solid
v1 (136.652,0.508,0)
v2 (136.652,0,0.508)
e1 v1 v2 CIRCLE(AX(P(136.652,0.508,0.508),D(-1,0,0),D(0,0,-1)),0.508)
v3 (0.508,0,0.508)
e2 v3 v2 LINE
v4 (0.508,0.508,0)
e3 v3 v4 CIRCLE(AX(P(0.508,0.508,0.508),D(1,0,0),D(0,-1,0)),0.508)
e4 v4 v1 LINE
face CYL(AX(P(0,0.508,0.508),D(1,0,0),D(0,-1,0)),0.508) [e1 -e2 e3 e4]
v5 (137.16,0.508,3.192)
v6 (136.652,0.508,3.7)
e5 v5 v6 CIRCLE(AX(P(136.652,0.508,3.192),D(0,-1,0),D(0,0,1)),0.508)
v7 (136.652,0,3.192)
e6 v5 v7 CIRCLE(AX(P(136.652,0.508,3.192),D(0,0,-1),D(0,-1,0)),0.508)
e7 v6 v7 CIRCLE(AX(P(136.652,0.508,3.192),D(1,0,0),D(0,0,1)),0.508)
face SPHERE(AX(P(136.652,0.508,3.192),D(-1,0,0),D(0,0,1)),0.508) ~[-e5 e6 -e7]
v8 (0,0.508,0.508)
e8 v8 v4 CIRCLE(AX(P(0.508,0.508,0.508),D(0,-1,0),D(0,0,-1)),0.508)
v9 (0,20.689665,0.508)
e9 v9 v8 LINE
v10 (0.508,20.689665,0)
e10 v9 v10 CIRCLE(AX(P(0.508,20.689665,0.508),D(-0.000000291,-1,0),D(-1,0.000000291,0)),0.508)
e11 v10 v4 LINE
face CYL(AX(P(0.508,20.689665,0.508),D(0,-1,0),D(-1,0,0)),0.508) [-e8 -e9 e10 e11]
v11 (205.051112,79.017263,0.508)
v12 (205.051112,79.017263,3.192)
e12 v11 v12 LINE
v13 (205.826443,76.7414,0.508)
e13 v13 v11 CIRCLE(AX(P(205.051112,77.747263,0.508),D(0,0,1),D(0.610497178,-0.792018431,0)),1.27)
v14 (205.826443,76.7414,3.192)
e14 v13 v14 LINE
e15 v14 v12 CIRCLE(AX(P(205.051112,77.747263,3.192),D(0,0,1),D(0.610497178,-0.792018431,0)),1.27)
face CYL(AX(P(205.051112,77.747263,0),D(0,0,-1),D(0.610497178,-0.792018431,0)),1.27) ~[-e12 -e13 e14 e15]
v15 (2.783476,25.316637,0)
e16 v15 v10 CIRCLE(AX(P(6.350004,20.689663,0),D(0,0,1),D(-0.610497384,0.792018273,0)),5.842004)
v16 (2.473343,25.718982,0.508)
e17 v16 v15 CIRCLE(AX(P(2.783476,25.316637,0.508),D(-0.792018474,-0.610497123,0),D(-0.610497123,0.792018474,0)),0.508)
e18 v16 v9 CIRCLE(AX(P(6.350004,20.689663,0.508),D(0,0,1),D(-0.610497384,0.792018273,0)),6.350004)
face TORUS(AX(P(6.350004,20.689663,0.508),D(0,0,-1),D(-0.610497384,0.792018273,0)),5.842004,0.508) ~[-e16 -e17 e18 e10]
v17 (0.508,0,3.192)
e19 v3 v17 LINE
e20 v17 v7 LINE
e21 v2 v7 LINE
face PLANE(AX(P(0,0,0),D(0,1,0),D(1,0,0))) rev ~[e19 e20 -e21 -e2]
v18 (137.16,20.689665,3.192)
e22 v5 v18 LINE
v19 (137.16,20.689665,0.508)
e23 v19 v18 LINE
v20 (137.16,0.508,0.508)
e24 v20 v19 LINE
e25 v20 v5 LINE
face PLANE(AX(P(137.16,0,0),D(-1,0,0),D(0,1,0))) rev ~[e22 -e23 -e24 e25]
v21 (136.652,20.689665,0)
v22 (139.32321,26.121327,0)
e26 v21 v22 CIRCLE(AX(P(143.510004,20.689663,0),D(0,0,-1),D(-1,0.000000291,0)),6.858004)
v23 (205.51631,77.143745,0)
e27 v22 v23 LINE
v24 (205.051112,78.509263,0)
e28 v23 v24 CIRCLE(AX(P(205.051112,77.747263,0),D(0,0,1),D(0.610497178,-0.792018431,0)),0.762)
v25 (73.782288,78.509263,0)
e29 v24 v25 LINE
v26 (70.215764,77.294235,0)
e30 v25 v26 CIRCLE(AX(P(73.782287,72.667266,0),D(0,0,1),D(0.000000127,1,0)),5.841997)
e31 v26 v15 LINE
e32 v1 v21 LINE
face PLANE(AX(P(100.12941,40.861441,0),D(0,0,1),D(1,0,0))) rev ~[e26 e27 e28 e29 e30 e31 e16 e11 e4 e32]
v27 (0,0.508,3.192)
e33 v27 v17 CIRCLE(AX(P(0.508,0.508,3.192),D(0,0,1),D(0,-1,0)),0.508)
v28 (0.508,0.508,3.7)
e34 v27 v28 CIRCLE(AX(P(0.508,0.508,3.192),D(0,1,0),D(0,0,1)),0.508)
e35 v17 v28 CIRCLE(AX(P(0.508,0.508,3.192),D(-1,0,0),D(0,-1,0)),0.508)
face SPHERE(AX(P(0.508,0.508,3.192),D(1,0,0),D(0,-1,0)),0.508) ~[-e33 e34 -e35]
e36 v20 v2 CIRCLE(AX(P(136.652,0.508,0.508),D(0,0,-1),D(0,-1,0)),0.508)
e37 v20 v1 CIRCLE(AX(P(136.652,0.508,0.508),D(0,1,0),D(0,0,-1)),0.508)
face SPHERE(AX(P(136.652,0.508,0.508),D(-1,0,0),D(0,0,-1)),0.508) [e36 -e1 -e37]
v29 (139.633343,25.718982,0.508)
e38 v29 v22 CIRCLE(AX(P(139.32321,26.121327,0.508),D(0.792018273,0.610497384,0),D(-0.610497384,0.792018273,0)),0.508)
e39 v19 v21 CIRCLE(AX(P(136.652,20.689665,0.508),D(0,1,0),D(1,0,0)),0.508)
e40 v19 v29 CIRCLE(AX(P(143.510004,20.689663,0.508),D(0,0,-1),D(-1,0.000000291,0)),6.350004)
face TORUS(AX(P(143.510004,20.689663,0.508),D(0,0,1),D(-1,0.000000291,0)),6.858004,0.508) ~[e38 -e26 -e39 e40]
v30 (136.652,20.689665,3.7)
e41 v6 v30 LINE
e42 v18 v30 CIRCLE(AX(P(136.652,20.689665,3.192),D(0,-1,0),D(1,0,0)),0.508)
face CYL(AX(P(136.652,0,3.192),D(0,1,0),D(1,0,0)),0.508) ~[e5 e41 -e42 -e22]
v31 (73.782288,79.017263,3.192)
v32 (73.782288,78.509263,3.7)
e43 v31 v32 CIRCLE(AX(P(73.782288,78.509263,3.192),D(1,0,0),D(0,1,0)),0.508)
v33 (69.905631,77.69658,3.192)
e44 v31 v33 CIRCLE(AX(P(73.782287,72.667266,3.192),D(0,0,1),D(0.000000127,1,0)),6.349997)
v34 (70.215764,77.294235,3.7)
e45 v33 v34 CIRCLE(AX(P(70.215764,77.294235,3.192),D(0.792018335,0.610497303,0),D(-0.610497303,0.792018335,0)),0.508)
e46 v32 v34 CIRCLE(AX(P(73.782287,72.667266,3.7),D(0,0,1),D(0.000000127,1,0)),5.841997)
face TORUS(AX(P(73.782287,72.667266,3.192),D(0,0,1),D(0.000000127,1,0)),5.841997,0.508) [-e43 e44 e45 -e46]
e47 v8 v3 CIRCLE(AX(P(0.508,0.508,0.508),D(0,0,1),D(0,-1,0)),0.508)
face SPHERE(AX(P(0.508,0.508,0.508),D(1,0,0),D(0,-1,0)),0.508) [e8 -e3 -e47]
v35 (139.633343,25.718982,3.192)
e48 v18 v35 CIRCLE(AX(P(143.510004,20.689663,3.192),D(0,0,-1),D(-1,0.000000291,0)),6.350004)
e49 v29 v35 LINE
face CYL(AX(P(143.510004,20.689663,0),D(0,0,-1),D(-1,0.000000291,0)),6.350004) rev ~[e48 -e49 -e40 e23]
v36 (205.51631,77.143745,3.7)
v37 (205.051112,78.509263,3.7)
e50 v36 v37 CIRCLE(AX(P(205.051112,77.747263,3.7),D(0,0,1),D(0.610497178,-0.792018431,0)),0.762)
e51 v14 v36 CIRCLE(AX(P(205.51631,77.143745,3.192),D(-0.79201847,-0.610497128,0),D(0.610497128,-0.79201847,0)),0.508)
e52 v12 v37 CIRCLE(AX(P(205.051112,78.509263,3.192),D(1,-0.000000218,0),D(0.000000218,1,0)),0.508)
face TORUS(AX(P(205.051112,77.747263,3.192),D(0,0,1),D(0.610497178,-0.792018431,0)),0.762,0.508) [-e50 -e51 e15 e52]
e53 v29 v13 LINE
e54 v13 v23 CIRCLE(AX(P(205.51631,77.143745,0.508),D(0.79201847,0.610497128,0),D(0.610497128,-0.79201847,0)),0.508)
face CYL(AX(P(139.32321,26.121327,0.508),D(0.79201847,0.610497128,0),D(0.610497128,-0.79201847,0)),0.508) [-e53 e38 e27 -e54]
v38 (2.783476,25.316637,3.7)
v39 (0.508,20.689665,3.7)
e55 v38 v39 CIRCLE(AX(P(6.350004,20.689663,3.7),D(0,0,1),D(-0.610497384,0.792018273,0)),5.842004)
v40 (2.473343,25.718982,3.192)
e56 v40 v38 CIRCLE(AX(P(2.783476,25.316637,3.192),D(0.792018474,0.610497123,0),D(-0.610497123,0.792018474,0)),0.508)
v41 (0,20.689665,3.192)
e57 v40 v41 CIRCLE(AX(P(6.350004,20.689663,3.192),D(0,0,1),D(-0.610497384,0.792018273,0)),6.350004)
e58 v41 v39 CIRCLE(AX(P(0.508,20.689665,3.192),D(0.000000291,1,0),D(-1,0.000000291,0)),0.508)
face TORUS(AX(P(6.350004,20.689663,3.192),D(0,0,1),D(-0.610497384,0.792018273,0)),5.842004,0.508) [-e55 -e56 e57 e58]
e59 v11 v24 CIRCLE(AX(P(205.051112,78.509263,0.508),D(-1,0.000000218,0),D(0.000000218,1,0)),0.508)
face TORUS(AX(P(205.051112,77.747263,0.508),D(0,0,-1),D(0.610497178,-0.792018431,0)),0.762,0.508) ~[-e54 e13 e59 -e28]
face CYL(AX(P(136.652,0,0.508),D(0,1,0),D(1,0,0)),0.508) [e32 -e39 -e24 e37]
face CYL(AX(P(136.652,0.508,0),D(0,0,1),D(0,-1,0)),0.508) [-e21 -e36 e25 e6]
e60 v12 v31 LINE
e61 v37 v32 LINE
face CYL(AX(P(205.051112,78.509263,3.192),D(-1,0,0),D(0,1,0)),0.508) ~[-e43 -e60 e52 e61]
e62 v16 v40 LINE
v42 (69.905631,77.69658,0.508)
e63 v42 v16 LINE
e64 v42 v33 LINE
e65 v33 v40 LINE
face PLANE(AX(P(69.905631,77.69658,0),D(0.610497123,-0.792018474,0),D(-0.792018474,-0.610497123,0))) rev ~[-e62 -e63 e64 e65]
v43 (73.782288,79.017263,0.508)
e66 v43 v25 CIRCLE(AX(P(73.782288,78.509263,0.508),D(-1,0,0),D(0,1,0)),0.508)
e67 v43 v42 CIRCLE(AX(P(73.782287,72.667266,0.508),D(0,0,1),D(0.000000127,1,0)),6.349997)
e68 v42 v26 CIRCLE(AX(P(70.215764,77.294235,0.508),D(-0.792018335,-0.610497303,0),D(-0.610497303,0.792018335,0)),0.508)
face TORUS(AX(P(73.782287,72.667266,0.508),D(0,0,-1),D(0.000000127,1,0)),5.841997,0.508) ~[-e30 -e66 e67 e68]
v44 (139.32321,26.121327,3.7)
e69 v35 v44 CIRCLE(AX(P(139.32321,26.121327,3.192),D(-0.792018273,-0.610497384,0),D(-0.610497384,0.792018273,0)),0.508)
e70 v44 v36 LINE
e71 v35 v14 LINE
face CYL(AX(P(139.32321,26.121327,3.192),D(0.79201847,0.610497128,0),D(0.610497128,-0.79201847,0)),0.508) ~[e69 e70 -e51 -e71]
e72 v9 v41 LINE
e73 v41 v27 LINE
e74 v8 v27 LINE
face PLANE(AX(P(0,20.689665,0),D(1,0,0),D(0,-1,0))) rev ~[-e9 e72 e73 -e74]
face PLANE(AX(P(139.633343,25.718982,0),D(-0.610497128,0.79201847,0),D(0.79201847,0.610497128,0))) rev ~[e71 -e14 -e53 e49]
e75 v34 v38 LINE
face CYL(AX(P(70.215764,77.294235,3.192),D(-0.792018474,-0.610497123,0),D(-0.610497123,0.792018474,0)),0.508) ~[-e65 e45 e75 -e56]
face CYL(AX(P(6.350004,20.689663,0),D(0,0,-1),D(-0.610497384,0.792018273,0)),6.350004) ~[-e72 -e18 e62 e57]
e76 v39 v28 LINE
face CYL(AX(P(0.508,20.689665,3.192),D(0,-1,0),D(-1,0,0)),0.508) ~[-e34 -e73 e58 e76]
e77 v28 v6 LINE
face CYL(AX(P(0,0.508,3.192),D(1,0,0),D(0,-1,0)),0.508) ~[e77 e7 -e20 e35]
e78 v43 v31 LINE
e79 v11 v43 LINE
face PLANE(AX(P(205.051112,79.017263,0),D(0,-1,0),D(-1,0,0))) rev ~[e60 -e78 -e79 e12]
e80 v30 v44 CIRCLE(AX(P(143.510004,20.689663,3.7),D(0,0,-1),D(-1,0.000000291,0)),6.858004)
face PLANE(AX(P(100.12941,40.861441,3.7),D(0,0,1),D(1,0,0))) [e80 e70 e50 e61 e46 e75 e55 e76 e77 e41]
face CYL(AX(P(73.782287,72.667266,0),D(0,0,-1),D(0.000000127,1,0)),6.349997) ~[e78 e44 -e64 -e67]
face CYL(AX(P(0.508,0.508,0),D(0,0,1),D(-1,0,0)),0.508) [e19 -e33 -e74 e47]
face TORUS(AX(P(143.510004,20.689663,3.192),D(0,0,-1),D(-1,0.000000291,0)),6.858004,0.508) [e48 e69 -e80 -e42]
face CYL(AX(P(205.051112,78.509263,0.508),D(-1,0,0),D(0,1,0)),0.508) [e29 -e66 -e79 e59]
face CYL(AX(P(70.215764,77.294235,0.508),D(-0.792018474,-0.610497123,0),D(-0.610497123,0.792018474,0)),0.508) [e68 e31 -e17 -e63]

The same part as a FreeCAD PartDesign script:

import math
import FreeCAD as App
import Part
import Sketcher
Q = App.Units.Quantity


def edges_at(feature, points):
    """Names of the edges that pass closest to the given points."""
    edges = feature.Shape.Edges
    near = lambda p: min(range(len(edges)), key=lambda i: edges[i].distToShape(Part.Vertex(*p))[0])
    return sorted({f"Edge{near(p) + 1}" for p in points})

doc = App.newDocument("Part")
params = doc.addObject("Spreadsheet::Sheet", "Params")
for row, (alias, value) in enumerate([
    ("sketch1_radius", "0.2500001 in"),
    ("sketch1_radius2", "0.05 in"),
    ("sketch1_radius3", "0.2499999 in"),
    ("sketch1_width", "5.4 in"),
    ("pad1_length", "3.7 mm"),
    ("fillet_radius", "0.02 in"),
], start=1):
    params.set(f"A{row}", alias)
    params.set(f"B{row}", "=" + value)
    params.setAlias(f"B{row}", alias)

body = doc.addObject("PartDesign::Body", "Body")

# Sketch on XY plane
sketch1 = body.newObject("Sketcher::SketchObject", "Sketch")
sketch1.AttachmentSupport = (doc.getObject("XY_Plane"), [""])
sketch1.MapMode = "FlatFace"
sketch1.addGeometry([
    Part.LineSegment(App.Vector(0, 20.689665, 0), App.Vector(0, 0, 0)),  # 0
    Part.LineSegment(App.Vector(0, 0, 0), App.Vector(137.16, 0, 0)),  # 1
    Part.LineSegment(App.Vector(137.16, 0, 0), App.Vector(137.16, 20.689665, 0)),  # 2
    Part.ArcOfCircle(Part.Circle(App.Vector(143.510004, 20.689663, 0), App.Vector(0, 0, 1), 6.350004), math.radians(127.625476), math.radians(179.999983)),  # 3
    Part.LineSegment(App.Vector(139.633343, 25.718982, 0), App.Vector(205.826443, 76.7414, 0)),  # 4
    Part.ArcOfCircle(Part.Circle(App.Vector(205.051112, 77.747263, 0), App.Vector(0, 0, 1), 1.27), math.radians(-52.374539), math.radians(89.999988)),  # 5
    Part.LineSegment(App.Vector(205.051112, 79.017263, 0), App.Vector(73.782288, 79.017263, 0)),  # 6
    Part.ArcOfCircle(Part.Circle(App.Vector(73.782287, 72.667266, 0), App.Vector(0, 0, 1), 6.349997), math.radians(89.999993), math.radians(127.62547)),  # 7
    Part.LineSegment(App.Vector(69.905631, 77.69658, 0), App.Vector(2.473343, 25.718982, 0)),  # 8
    Part.ArcOfCircle(Part.Circle(App.Vector(6.350004, 20.689663, 0), App.Vector(0, 0, 1), 6.350004), math.radians(127.625476), math.radians(179.999983)),  # 9
], False)
sketch1.addConstraint([
    Sketcher.Constraint("Coincident", 0, 2, 1, 1),
    Sketcher.Constraint("Coincident", 1, 2, 2, 1),
    Sketcher.Constraint("Tangent", 2, 2, 3, 2),
    Sketcher.Constraint("Tangent", 3, 1, 4, 1),
    Sketcher.Constraint("Tangent", 4, 2, 5, 1),
    Sketcher.Constraint("Tangent", 5, 2, 6, 1),
    Sketcher.Constraint("Tangent", 6, 2, 7, 1),
    Sketcher.Constraint("Tangent", 7, 2, 8, 1),
    Sketcher.Constraint("Tangent", 8, 2, 9, 1),
    Sketcher.Constraint("Tangent", 9, 2, 0, 1),
    Sketcher.Constraint("Vertical", 0),
    Sketcher.Constraint("Horizontal", 1),
    Sketcher.Constraint("Vertical", 2),
    Sketcher.Constraint("Horizontal", 6),
    Sketcher.Constraint("Coincident", 0, 2, -1, 1),
    Sketcher.Constraint("Equal", 3, 9),
    Sketcher.Constraint("Parallel", 4, 8),
    Sketcher.Constraint("Horizontal", 3, 3, 9, 3),
    Sketcher.Constraint("Radius", 3, Q("0.2500001 in")),
    Sketcher.Constraint("Radius", 5, Q("0.05 in")),
    Sketcher.Constraint("Radius", 7, Q("0.2499999 in")),
    Sketcher.Constraint("DistanceX", 1, 1, 1, 2, Q("5.4 in")),
    Sketcher.Constraint("DistanceY", -1, 1, 4, 2, 76.7414),
    Sketcher.Constraint("DistanceY", 3, 3, 5, 3, 57.0576),
    Sketcher.Constraint("DistanceX", 3, 1, 4, 2, 66.1931),
])
sketch1.setExpression("Constraints[18]", "Params.sketch1_radius")
sketch1.setExpression("Constraints[19]", "Params.sketch1_radius2")
sketch1.setExpression("Constraints[20]", "Params.sketch1_radius3")
sketch1.setExpression("Constraints[21]", "Params.sketch1_width")
pad1 = body.newObject("PartDesign::Pad", "Pad")
pad1.Profile = sketch1
pad1.setExpression("Length", "Params.pad1_length")
doc.recompute()

fillet = body.newObject("PartDesign::Fillet", "Fillet")
fillet.Base = (pad1, edges_at(pad1, [
    (68.58, 0, 3.7),
    (68.58, 0, 0),
    (0, 0, 1.85),
    (0, 10.345, 3.7),
    (137.16, 10.345, 0),
    (137.16, 0, 1.85),
]))
fillet.setExpression("Radius", "Params.fillet_radius")

doc.recompute()
